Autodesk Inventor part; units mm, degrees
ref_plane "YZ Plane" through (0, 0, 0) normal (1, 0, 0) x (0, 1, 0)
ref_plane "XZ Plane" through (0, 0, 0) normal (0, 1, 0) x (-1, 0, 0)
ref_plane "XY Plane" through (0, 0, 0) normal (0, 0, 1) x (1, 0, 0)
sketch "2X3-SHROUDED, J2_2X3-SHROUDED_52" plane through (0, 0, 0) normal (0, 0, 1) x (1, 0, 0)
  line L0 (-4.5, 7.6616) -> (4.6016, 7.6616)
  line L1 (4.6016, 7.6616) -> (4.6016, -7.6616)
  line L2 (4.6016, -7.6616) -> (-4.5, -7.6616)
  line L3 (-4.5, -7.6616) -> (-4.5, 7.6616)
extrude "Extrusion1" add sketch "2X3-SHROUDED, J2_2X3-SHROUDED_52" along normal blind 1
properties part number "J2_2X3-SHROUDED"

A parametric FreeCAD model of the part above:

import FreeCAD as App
import Part
import Sketcher

V = App.Vector


def add_polygon(sketch, points):
    """Adds a closed chain of lines whose ends are joined by coincident constraints."""
    first, n = sketch.GeometryCount, len(points)
    for a, b in zip(points, points[1:] + points[:1]):
        sketch.addGeometry(Part.LineSegment(App.Vector(*a, 0), App.Vector(*b, 0)), False)
    for i in range(n):
        sketch.addConstraint(Sketcher.Constraint("Coincident", first + i, 2, first + (i + 1) % n, 1))

doc = App.newDocument("Part")
body = doc.addObject("PartDesign::Body", "Body")

# Sketch on XY plane
sketch1 = body.newObject("Sketcher::SketchObject", "Sketch")
sketch1.AttachmentSupport = (doc.getObject("XY_Plane"), [""])
sketch1.MapMode = "FlatFace"
add_polygon(sketch1, [(4.6016, 7.6616), (-4.5, 7.6616), (-4.5, -7.6616), (4.6016, -7.6616)])  # lines 0-3
sketch1.addConstraint(Sketcher.Constraint("Horizontal", 0))
sketch1.addConstraint(Sketcher.Constraint("Vertical", 1))
sketch1.addConstraint(Sketcher.Constraint("Horizontal", 2))
sketch1.addConstraint(Sketcher.Constraint("Vertical", 3))
sketch1.addConstraint(Sketcher.Constraint("DistanceX", 0, 2, -1, 1, 4.5))
sketch1.addConstraint(Sketcher.Constraint("DistanceX", 0, 2, 0, 1, 9.1016))
sketch1.addConstraint(Sketcher.Constraint("DistanceY", 1, 2, 1, 1, 15.3232))
sketch1.addConstraint(Sketcher.Constraint("DistanceY", -1, 1, 0, 2, 7.6616))
pad1 = body.newObject("PartDesign::Pad", "Pad")
pad1.Profile = sketch1
pad1.Length = 1

doc.recompute()
